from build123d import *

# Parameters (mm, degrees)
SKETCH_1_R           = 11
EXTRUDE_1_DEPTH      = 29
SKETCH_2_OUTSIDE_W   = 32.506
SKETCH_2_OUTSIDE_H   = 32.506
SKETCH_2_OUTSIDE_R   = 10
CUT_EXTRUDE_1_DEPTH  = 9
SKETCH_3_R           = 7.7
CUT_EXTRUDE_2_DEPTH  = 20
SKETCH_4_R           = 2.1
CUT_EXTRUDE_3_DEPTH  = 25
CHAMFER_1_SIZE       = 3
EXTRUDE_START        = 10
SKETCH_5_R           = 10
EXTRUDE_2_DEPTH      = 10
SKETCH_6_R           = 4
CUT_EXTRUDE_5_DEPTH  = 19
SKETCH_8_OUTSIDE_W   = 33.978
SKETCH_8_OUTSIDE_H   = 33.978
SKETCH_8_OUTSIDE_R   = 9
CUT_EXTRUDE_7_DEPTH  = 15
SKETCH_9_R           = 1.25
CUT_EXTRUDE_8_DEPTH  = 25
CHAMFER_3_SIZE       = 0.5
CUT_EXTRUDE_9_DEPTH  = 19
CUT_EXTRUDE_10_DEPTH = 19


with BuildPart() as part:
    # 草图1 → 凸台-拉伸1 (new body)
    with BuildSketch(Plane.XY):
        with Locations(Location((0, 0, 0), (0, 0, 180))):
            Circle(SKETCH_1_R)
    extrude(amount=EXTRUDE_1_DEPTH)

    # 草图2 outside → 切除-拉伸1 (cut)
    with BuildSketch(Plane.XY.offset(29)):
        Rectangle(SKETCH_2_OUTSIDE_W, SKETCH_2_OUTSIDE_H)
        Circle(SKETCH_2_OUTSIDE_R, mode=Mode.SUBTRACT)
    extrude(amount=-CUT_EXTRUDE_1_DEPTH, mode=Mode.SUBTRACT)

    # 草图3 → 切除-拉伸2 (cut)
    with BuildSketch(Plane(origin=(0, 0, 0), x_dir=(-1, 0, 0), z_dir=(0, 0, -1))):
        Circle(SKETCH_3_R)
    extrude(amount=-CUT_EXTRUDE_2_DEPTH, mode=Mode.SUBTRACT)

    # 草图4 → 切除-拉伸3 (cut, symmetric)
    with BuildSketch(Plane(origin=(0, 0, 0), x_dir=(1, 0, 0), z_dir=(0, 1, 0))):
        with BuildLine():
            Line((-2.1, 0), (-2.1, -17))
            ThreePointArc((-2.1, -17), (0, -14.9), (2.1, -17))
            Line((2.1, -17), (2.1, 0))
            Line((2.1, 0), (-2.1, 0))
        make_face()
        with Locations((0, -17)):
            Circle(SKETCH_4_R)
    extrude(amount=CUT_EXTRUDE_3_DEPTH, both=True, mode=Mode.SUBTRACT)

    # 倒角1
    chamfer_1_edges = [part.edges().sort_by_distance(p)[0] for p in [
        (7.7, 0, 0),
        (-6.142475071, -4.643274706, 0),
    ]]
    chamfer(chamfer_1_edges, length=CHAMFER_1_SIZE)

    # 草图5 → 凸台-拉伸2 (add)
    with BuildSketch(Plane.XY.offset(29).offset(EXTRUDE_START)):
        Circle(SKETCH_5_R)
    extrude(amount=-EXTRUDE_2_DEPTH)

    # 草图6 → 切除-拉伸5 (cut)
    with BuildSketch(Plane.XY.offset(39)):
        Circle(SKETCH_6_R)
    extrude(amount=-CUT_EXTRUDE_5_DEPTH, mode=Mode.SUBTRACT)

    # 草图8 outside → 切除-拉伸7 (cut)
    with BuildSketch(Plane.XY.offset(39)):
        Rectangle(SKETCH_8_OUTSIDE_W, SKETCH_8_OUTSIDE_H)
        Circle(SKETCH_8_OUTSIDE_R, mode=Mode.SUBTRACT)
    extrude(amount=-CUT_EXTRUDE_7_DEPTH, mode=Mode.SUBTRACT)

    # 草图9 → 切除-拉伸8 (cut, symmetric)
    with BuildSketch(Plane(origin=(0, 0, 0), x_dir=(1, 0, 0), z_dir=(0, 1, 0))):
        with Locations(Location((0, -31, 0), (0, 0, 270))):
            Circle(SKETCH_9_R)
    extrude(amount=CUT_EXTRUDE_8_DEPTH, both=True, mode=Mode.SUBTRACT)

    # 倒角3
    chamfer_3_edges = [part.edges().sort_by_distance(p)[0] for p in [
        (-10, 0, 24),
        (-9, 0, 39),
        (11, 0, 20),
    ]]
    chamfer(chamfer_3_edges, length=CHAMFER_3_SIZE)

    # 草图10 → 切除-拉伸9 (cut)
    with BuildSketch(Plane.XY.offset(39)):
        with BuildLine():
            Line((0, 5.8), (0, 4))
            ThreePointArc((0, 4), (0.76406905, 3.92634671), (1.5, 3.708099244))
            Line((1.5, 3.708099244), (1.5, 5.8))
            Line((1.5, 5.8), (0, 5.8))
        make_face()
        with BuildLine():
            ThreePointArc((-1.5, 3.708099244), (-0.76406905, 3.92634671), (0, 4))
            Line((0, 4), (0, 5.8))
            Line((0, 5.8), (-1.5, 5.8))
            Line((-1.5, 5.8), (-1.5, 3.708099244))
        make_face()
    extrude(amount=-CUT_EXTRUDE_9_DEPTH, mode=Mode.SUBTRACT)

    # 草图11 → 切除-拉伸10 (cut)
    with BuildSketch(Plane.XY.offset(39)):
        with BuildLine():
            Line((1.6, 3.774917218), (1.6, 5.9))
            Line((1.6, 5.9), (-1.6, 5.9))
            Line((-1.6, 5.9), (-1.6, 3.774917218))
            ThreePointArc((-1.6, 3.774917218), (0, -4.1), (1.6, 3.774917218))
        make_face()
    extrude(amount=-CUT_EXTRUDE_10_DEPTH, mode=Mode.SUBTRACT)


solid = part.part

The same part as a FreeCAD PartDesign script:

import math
import FreeCAD as App
import Part
import Sketcher

V = App.Vector
Q = App.Units.Quantity


def edges_at(feature, points):
    """Names of the edges that pass closest to the given points."""
    edges = feature.Shape.Edges
    near = lambda p: min(range(len(edges)), key=lambda i: edges[i].distToShape(Part.Vertex(*p))[0])
    return sorted({f"Edge{near(p) + 1}" for p in points})


def add_polygon(sketch, points):
    """Adds a closed chain of lines whose ends are joined by coincident constraints."""
    first, n = sketch.GeometryCount, len(points)
    for a, b in zip(points, points[1:] + points[:1]):
        sketch.addGeometry(Part.LineSegment(App.Vector(*a, 0), App.Vector(*b, 0)), False)
    for i in range(n):
        sketch.addConstraint(Sketcher.Constraint("Coincident", first + i, 2, first + (i + 1) % n, 1))

doc = App.newDocument("Part")
body = doc.addObject("PartDesign::Body", "Body")

sketch1 = body.newObject("Sketcher::SketchObject", "Sketch")
sketch1.AttachmentSupport = (doc.getObject("XY_Plane"), [""])
sketch1.MapMode = "FlatFace"
sketch1.addGeometry(Part.Circle(V(0, 0, 0), V(0, 0, 1), 11), False)
sketch1.addConstraint([
    Sketcher.Constraint("Coincident", 0, 3, -1, 1),
    Sketcher.Constraint("Diameter", 0, Q("22 mm")),
])
pad1 = body.newObject("PartDesign::Pad", "Pad")
pad1.Profile = sketch1
pad1.Length = 29

sketch2 = body.newObject("Sketcher::SketchObject", "Sketch001")
sketch2.AttachmentSupport = (doc.getObject("XY_Plane"), [""])
sketch2.MapMode = "FlatFace"
sketch2.AttachmentOffset = App.Placement(V(0, 0, 29), App.Rotation())
add_polygon(sketch2, [(-16.253, 16.253), (-16.253, -16.253), (16.253, -16.253), (16.253, 16.253)])
sketch2.addGeometry(Part.Circle(V(0, 0, 0), V(0, 0, 1), 10), False)
sketch2.addConstraint([
    Sketcher.Constraint("Vertical", 0),
    Sketcher.Constraint("Horizontal", 1),
    Sketcher.Constraint("Vertical", 2),
    Sketcher.Constraint("Horizontal", 3),
    Sketcher.Constraint("Coincident", 4, 3, -1, 1),
    Sketcher.Constraint("Symmetric", 0, 2, 2, 2, -1, 1),
    Sketcher.Constraint("Equal", 3, 0),
    Sketcher.Constraint("Diameter", 4, Q("20 mm")),
    Sketcher.Constraint("DistanceX", 1, 1, 1, 2, Q("32.506 mm")),
])
pocket1 = body.newObject("PartDesign::Pocket", "Pocket")
pocket1.Profile = sketch2
pocket1.Length = 9

sketch3 = body.newObject("Sketcher::SketchObject", "Sketch002")
sketch3.AttachmentSupport = (doc.getObject("XY_Plane"), [""])
sketch3.MapMode = "FlatFace"
sketch3.addGeometry(Part.Circle(V(0, 0, 0), V(0, 0, 1), 7.7), False)
sketch3.addConstraint([
    Sketcher.Constraint("Coincident", 0, 3, -1, 1),
    Sketcher.Constraint("Diameter", 0, Q("15.4 mm")),
])
pocket2 = body.newObject("PartDesign::Pocket", "Pocket001")
pocket2.Profile = sketch3
pocket2.Length = 20
pocket2.Reversed = True

sketch4 = body.newObject("Sketcher::SketchObject", "Sketch003")
sketch4.AttachmentSupport = (doc.getObject("XZ_Plane"), [""])
sketch4.MapMode = "FlatFace"
sketch4.addGeometry([
    Part.LineSegment(V(-2.1, 0, 0), V(-2.1, 17, 0)),
    Part.ArcOfCircle(Part.Circle(V(0, 17, 0), V(0, 0, 1), 2.1), math.radians(0), math.radians(180)),
    Part.LineSegment(V(2.1, 17, 0), V(2.1, 0, 0)),
    Part.LineSegment(V(2.1, 0, 0), V(-2.1, 0, 0)),
], False)
sketch4.addConstraint([
    Sketcher.Constraint("Tangent", 0, 2, 1, 2),
    Sketcher.Constraint("Tangent", 1, 1, 2, 1),
    Sketcher.Constraint("Coincident", 2, 2, 3, 1),
    Sketcher.Constraint("Coincident", 3, 2, 0, 1),
    Sketcher.Constraint("Vertical", 0),
    Sketcher.Constraint("Vertical", 2),
    Sketcher.Constraint("Horizontal", 3),
    Sketcher.Constraint("Symmetric", 2, 2, 3, 2, -1, 1),
    Sketcher.Constraint("Radius", 1, Q("2.1 mm")),
    Sketcher.Constraint("DistanceY", 0, 1, 0, 2, Q("17 mm")),
])
pocket3 = body.newObject("PartDesign::Pocket", "Pocket002")
pocket3.Profile = sketch4
pocket3.Length = 50
pocket3.Midplane = True
doc.recompute()

chamfer = body.newObject("PartDesign::Chamfer", "Chamfer")
chamfer.Base = (pocket3, edges_at(pocket3, [(7.7, 0, 0), (-6.142, -4.643, 0)]))
chamfer.Size = 3

sketch5 = body.newObject("Sketcher::SketchObject", "Sketch004")
sketch5.AttachmentSupport = (doc.getObject("XY_Plane"), [""])
sketch5.MapMode = "FlatFace"
sketch5.AttachmentOffset = App.Placement(V(0, 0, 39), App.Rotation())
sketch5.addGeometry(Part.Circle(V(0, 0, 0), V(0, 0, 1), 10), False)
sketch5.addConstraint([
    Sketcher.Constraint("Coincident", 0, 3, -1, 1),
    Sketcher.Constraint("Diameter", 0, Q("20 mm")),
])
pad2 = body.newObject("PartDesign::Pad", "Pad001")
pad2.Profile = sketch5
pad2.Length = 10
pad2.Reversed = True

sketch6 = body.newObject("Sketcher::SketchObject", "Sketch005")
sketch6.AttachmentSupport = (doc.getObject("XY_Plane"), [""])
sketch6.MapMode = "FlatFace"
sketch6.AttachmentOffset = App.Placement(V(0, 0, 39), App.Rotation())
sketch6.addGeometry(Part.Circle(V(0, 0, 0), V(0, 0, 1), 4), False)
sketch6.addConstraint([
    Sketcher.Constraint("Coincident", 0, 3, -1, 1),
    Sketcher.Constraint("Diameter", 0, Q("8 mm")),
])
pocket4 = body.newObject("PartDesign::Pocket", "Pocket003")
pocket4.Profile = sketch6
pocket4.Length = 19

sketch7 = body.newObject("Sketcher::SketchObject", "Sketch006")
sketch7.AttachmentSupport = (doc.getObject("XY_Plane"), [""])
sketch7.MapMode = "FlatFace"
sketch7.AttachmentOffset = App.Placement(V(0, 0, 39), App.Rotation())
add_polygon(sketch7, [(-16.989, 16.989), (-16.989, -16.989), (16.989, -16.989), (16.989, 16.989)])
sketch7.addGeometry(Part.Circle(V(0, 0, 0), V(0, 0, 1), 9), False)
sketch7.addConstraint([
    Sketcher.Constraint("Vertical", 0),
    Sketcher.Constraint("Horizontal", 1),
    Sketcher.Constraint("Vertical", 2),
    Sketcher.Constraint("Horizontal", 3),
    Sketcher.Constraint("Coincident", 4, 3, -1, 1),
    Sketcher.Constraint("Symmetric", 0, 2, 2, 2, -1, 1),
    Sketcher.Constraint("Equal", 3, 0),
    Sketcher.Constraint("Diameter", 4, Q("18 mm")),
    Sketcher.Constraint("DistanceX", 1, 1, 1, 2, Q("33.978 mm")),
])
pocket5 = body.newObject("PartDesign::Pocket", "Pocket004")
pocket5.Profile = sketch7
pocket5.Length = 15

sketch8 = body.newObject("Sketcher::SketchObject", "Sketch007")
sketch8.AttachmentSupport = (doc.getObject("XZ_Plane"), [""])
sketch8.MapMode = "FlatFace"
sketch8.addGeometry(Part.Circle(V(0, 31, 0), V(0, 0, 1), 1.25), False)
sketch8.addConstraint([
    Sketcher.Constraint("PointOnObject", 0, 3, -2),
    Sketcher.Constraint("Diameter", 0, Q("2.5 mm")),
    Sketcher.Constraint("DistanceY", -1, 1, 0, 3, Q("31 mm")),
])
pocket6 = body.newObject("PartDesign::Pocket", "Pocket005")
pocket6.Profile = sketch8
pocket6.Length = 50
pocket6.Midplane = True
doc.recompute()

chamfer2 = body.newObject("PartDesign::Chamfer", "Chamfer001")
chamfer2.Base = (pocket6, edges_at(pocket6, [(-10, 0, 24), (-9, 0, 39), (11, 0, 20)]))
chamfer2.Size = 0.5

sketch9 = body.newObject("Sketcher::SketchObject", "Sketch008")
sketch9.AttachmentSupport = (doc.getObject("XY_Plane"), [""])
sketch9.MapMode = "FlatFace"
sketch9.AttachmentOffset = App.Placement(V(0, 0, 39), App.Rotation())
sketch9.addGeometry([
    Part.ArcOfCircle(Part.Circle(V(0, 0, 0), V(0, 0, 1), 4), math.radians(67.975687), math.radians(90)),
    Part.LineSegment(V(1.5, 3.708099, 0), V(1.5, 5.8, 0)),
    Part.LineSegment(V(1.5, 5.8, 0), V(-1.5, 5.8, 0)),
    Part.LineSegment(V(-1.5, 5.8, 0), V(-1.5, 3.708099, 0)),
    Part.ArcOfCircle(Part.Circle(V(0, 0, 0), V(0, 0, 1), 4), math.radians(90), math.radians(112.024313)),
], False)
sketch9.addConstraint([
    Sketcher.Constraint("Coincident", 0, 1, 1, 1),
    Sketcher.Constraint("Coincident", 1, 2, 2, 1),
    Sketcher.Constraint("Coincident", 2, 2, 3, 1),
    Sketcher.Constraint("Coincident", 3, 2, 4, 2),
    Sketcher.Constraint("Tangent", 4, 1, 0, 2),
    Sketcher.Constraint("Vertical", 1),
    Sketcher.Constraint("Horizontal", 2),
    Sketcher.Constraint("Vertical", 3),
    Sketcher.Constraint("Coincident", 0, 3, -1, 1),
    Sketcher.Constraint("Equal", 0, 4),
    Sketcher.Constraint("PointOnObject", 4, 1, -2),
    Sketcher.Constraint("Horizontal", 0, 1, 3, 2),
    Sketcher.Constraint("Radius", 0, Q("4 mm")),
    Sketcher.Constraint("DistanceX", 2, 2, 2, 1, Q("3 mm")),
    Sketcher.Constraint("DistanceY", -1, 1, 1, 2, Q("5.8 mm")),
])
pocket7 = body.newObject("PartDesign::Pocket", "Pocket006")
pocket7.Profile = sketch9
pocket7.Length = 19

sketch10 = body.newObject("Sketcher::SketchObject", "Sketch009")
sketch10.AttachmentSupport = (doc.getObject("XY_Plane"), [""])
sketch10.MapMode = "FlatFace"
sketch10.AttachmentOffset = App.Placement(V(0, 0, 39), App.Rotation())
sketch10.addGeometry([
    Part.LineSegment(V(1.6, 3.774917, 0), V(1.6, 5.9, 0)),
    Part.LineSegment(V(1.6, 5.9, 0), V(-1.6, 5.9, 0)),
    Part.LineSegment(V(-1.6, 5.9, 0), V(-1.6, 3.774917, 0)),
    Part.ArcOfCircle(Part.Circle(V(0, 0, 0), V(0, 0, 1), 4.1), math.radians(112.969677), math.radians(427.030323)),
], False)
sketch10.addConstraint([
    Sketcher.Constraint("Coincident", 0, 2, 1, 1),
    Sketcher.Constraint("Coincident", 1, 2, 2, 1),
    Sketcher.Constraint("Coincident", 2, 2, 3, 1),
    Sketcher.Constraint("Coincident", 3, 2, 0, 1),
    Sketcher.Constraint("Vertical", 0),
    Sketcher.Constraint("Horizontal", 1),
    Sketcher.Constraint("Vertical", 2),
    Sketcher.Constraint("Coincident", 3, 3, -1, 1),
    Sketcher.Constraint("Horizontal", 2, 2, 3, 2),
    Sketcher.Constraint("Radius", 3, Q("4.1 mm")),
    Sketcher.Constraint("DistanceX", 1, 2, 1, 1, Q("3.2 mm")),
    Sketcher.Constraint("DistanceY", -1, 1, 0, 2, Q("5.9 mm")),
])
pocket8 = body.newObject("PartDesign::Pocket", "Pocket007")
pocket8.Profile = sketch10
pocket8.Length = 19

doc.recompute()
